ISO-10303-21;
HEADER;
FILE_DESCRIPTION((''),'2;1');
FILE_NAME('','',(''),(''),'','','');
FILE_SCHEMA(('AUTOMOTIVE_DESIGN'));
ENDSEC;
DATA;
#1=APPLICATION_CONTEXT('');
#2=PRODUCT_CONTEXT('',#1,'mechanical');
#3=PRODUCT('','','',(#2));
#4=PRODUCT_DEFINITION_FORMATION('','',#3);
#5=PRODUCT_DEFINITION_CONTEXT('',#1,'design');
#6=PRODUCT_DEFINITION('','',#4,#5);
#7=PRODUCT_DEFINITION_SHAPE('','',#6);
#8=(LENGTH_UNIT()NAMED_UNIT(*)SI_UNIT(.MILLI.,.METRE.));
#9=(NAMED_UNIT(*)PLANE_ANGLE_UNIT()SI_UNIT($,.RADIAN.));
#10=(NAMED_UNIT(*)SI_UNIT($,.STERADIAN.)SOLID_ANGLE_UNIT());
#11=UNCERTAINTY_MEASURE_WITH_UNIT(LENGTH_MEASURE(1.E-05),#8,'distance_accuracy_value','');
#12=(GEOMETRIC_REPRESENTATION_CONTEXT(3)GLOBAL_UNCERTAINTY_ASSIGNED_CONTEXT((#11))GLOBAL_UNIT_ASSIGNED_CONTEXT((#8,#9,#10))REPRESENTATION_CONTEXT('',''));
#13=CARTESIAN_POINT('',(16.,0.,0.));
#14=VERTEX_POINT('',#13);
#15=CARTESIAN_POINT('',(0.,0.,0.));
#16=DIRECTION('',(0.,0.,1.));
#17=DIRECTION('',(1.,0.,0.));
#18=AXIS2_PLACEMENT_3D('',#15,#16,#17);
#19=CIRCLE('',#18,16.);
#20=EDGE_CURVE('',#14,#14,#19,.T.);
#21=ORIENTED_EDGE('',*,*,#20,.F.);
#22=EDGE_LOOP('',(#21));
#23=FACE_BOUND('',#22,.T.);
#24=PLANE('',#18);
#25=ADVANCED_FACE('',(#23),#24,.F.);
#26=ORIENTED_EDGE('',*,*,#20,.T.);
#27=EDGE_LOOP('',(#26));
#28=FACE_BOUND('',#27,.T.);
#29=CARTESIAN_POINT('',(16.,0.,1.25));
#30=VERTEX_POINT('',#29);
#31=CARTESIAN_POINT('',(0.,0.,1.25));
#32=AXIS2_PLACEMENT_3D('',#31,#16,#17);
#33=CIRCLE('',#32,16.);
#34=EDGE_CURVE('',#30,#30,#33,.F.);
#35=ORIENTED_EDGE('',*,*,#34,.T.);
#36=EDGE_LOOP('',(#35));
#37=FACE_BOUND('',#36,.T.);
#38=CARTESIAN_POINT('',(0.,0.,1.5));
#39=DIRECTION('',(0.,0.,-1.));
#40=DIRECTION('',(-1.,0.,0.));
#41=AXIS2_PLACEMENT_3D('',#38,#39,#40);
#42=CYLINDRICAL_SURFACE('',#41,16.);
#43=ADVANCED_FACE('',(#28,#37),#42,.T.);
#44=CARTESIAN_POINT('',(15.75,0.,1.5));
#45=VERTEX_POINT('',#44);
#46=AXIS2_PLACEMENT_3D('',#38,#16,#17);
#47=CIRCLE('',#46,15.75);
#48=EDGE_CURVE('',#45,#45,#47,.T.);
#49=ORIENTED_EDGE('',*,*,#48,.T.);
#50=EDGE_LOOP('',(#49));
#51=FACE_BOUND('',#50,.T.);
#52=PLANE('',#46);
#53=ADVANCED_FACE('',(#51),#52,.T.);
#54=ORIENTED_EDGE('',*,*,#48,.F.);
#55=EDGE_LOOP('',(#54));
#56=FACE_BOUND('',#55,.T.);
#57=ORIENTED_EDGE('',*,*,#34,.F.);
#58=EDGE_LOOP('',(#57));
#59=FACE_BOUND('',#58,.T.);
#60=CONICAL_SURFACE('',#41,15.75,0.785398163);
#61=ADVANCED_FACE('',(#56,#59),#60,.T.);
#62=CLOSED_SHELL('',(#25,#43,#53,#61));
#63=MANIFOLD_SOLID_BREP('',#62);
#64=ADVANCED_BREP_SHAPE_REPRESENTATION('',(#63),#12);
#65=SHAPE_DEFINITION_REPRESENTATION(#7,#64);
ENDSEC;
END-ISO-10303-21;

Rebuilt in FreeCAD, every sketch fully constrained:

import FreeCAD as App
import Part
import Sketcher

V = App.Vector


def edges_at(feature, points):
    """Names of the edges that pass closest to the given points."""
    edges = feature.Shape.Edges
    near = lambda p: min(range(len(edges)), key=lambda i: edges[i].distToShape(Part.Vertex(*p))[0])
    return sorted({f"Edge{near(p) + 1}" for p in points})

doc = App.newDocument("Part")
params = doc.addObject("Spreadsheet::Sheet", "Params")
for row, (alias, value) in enumerate([
    ("sketch1_diameter", "32 mm"),
    ("pad1_length", "1.5 mm"),
    ("chamfer_size", "0.25 mm"),
], start=1):
    params.set(f"A{row}", alias)
    params.set(f"B{row}", "=" + value)
    params.setAlias(f"B{row}", alias)

body = doc.addObject("PartDesign::Body", "Body")

sketch1 = body.newObject("Sketcher::SketchObject", "Sketch")
sketch1.AttachmentSupport = (doc.getObject("XY_Plane"), [""])
sketch1.MapMode = "FlatFace"
sketch1.addGeometry(Part.Circle(V(0, 0, 0), V(0, 0, 1), 16), False)
sketch1.addConstraint(Sketcher.Constraint("Coincident", 0, 3, -1, 1))
sketch1.addConstraint(Sketcher.Constraint("Diameter", 0, 32.0))
sketch1.setExpression("Constraints[1]", "Params.sketch1_diameter")
pad1 = body.newObject("PartDesign::Pad", "Pad")
pad1.Profile = sketch1
pad1.setExpression("Length", "Params.pad1_length")
doc.recompute()

chamfer = body.newObject("PartDesign::Chamfer", "Chamfer")
chamfer.Base = (pad1, edges_at(pad1, [(-16, 0, 1.5)]))
chamfer.setExpression("Size", "Params.chamfer_size")

doc.recompute()
